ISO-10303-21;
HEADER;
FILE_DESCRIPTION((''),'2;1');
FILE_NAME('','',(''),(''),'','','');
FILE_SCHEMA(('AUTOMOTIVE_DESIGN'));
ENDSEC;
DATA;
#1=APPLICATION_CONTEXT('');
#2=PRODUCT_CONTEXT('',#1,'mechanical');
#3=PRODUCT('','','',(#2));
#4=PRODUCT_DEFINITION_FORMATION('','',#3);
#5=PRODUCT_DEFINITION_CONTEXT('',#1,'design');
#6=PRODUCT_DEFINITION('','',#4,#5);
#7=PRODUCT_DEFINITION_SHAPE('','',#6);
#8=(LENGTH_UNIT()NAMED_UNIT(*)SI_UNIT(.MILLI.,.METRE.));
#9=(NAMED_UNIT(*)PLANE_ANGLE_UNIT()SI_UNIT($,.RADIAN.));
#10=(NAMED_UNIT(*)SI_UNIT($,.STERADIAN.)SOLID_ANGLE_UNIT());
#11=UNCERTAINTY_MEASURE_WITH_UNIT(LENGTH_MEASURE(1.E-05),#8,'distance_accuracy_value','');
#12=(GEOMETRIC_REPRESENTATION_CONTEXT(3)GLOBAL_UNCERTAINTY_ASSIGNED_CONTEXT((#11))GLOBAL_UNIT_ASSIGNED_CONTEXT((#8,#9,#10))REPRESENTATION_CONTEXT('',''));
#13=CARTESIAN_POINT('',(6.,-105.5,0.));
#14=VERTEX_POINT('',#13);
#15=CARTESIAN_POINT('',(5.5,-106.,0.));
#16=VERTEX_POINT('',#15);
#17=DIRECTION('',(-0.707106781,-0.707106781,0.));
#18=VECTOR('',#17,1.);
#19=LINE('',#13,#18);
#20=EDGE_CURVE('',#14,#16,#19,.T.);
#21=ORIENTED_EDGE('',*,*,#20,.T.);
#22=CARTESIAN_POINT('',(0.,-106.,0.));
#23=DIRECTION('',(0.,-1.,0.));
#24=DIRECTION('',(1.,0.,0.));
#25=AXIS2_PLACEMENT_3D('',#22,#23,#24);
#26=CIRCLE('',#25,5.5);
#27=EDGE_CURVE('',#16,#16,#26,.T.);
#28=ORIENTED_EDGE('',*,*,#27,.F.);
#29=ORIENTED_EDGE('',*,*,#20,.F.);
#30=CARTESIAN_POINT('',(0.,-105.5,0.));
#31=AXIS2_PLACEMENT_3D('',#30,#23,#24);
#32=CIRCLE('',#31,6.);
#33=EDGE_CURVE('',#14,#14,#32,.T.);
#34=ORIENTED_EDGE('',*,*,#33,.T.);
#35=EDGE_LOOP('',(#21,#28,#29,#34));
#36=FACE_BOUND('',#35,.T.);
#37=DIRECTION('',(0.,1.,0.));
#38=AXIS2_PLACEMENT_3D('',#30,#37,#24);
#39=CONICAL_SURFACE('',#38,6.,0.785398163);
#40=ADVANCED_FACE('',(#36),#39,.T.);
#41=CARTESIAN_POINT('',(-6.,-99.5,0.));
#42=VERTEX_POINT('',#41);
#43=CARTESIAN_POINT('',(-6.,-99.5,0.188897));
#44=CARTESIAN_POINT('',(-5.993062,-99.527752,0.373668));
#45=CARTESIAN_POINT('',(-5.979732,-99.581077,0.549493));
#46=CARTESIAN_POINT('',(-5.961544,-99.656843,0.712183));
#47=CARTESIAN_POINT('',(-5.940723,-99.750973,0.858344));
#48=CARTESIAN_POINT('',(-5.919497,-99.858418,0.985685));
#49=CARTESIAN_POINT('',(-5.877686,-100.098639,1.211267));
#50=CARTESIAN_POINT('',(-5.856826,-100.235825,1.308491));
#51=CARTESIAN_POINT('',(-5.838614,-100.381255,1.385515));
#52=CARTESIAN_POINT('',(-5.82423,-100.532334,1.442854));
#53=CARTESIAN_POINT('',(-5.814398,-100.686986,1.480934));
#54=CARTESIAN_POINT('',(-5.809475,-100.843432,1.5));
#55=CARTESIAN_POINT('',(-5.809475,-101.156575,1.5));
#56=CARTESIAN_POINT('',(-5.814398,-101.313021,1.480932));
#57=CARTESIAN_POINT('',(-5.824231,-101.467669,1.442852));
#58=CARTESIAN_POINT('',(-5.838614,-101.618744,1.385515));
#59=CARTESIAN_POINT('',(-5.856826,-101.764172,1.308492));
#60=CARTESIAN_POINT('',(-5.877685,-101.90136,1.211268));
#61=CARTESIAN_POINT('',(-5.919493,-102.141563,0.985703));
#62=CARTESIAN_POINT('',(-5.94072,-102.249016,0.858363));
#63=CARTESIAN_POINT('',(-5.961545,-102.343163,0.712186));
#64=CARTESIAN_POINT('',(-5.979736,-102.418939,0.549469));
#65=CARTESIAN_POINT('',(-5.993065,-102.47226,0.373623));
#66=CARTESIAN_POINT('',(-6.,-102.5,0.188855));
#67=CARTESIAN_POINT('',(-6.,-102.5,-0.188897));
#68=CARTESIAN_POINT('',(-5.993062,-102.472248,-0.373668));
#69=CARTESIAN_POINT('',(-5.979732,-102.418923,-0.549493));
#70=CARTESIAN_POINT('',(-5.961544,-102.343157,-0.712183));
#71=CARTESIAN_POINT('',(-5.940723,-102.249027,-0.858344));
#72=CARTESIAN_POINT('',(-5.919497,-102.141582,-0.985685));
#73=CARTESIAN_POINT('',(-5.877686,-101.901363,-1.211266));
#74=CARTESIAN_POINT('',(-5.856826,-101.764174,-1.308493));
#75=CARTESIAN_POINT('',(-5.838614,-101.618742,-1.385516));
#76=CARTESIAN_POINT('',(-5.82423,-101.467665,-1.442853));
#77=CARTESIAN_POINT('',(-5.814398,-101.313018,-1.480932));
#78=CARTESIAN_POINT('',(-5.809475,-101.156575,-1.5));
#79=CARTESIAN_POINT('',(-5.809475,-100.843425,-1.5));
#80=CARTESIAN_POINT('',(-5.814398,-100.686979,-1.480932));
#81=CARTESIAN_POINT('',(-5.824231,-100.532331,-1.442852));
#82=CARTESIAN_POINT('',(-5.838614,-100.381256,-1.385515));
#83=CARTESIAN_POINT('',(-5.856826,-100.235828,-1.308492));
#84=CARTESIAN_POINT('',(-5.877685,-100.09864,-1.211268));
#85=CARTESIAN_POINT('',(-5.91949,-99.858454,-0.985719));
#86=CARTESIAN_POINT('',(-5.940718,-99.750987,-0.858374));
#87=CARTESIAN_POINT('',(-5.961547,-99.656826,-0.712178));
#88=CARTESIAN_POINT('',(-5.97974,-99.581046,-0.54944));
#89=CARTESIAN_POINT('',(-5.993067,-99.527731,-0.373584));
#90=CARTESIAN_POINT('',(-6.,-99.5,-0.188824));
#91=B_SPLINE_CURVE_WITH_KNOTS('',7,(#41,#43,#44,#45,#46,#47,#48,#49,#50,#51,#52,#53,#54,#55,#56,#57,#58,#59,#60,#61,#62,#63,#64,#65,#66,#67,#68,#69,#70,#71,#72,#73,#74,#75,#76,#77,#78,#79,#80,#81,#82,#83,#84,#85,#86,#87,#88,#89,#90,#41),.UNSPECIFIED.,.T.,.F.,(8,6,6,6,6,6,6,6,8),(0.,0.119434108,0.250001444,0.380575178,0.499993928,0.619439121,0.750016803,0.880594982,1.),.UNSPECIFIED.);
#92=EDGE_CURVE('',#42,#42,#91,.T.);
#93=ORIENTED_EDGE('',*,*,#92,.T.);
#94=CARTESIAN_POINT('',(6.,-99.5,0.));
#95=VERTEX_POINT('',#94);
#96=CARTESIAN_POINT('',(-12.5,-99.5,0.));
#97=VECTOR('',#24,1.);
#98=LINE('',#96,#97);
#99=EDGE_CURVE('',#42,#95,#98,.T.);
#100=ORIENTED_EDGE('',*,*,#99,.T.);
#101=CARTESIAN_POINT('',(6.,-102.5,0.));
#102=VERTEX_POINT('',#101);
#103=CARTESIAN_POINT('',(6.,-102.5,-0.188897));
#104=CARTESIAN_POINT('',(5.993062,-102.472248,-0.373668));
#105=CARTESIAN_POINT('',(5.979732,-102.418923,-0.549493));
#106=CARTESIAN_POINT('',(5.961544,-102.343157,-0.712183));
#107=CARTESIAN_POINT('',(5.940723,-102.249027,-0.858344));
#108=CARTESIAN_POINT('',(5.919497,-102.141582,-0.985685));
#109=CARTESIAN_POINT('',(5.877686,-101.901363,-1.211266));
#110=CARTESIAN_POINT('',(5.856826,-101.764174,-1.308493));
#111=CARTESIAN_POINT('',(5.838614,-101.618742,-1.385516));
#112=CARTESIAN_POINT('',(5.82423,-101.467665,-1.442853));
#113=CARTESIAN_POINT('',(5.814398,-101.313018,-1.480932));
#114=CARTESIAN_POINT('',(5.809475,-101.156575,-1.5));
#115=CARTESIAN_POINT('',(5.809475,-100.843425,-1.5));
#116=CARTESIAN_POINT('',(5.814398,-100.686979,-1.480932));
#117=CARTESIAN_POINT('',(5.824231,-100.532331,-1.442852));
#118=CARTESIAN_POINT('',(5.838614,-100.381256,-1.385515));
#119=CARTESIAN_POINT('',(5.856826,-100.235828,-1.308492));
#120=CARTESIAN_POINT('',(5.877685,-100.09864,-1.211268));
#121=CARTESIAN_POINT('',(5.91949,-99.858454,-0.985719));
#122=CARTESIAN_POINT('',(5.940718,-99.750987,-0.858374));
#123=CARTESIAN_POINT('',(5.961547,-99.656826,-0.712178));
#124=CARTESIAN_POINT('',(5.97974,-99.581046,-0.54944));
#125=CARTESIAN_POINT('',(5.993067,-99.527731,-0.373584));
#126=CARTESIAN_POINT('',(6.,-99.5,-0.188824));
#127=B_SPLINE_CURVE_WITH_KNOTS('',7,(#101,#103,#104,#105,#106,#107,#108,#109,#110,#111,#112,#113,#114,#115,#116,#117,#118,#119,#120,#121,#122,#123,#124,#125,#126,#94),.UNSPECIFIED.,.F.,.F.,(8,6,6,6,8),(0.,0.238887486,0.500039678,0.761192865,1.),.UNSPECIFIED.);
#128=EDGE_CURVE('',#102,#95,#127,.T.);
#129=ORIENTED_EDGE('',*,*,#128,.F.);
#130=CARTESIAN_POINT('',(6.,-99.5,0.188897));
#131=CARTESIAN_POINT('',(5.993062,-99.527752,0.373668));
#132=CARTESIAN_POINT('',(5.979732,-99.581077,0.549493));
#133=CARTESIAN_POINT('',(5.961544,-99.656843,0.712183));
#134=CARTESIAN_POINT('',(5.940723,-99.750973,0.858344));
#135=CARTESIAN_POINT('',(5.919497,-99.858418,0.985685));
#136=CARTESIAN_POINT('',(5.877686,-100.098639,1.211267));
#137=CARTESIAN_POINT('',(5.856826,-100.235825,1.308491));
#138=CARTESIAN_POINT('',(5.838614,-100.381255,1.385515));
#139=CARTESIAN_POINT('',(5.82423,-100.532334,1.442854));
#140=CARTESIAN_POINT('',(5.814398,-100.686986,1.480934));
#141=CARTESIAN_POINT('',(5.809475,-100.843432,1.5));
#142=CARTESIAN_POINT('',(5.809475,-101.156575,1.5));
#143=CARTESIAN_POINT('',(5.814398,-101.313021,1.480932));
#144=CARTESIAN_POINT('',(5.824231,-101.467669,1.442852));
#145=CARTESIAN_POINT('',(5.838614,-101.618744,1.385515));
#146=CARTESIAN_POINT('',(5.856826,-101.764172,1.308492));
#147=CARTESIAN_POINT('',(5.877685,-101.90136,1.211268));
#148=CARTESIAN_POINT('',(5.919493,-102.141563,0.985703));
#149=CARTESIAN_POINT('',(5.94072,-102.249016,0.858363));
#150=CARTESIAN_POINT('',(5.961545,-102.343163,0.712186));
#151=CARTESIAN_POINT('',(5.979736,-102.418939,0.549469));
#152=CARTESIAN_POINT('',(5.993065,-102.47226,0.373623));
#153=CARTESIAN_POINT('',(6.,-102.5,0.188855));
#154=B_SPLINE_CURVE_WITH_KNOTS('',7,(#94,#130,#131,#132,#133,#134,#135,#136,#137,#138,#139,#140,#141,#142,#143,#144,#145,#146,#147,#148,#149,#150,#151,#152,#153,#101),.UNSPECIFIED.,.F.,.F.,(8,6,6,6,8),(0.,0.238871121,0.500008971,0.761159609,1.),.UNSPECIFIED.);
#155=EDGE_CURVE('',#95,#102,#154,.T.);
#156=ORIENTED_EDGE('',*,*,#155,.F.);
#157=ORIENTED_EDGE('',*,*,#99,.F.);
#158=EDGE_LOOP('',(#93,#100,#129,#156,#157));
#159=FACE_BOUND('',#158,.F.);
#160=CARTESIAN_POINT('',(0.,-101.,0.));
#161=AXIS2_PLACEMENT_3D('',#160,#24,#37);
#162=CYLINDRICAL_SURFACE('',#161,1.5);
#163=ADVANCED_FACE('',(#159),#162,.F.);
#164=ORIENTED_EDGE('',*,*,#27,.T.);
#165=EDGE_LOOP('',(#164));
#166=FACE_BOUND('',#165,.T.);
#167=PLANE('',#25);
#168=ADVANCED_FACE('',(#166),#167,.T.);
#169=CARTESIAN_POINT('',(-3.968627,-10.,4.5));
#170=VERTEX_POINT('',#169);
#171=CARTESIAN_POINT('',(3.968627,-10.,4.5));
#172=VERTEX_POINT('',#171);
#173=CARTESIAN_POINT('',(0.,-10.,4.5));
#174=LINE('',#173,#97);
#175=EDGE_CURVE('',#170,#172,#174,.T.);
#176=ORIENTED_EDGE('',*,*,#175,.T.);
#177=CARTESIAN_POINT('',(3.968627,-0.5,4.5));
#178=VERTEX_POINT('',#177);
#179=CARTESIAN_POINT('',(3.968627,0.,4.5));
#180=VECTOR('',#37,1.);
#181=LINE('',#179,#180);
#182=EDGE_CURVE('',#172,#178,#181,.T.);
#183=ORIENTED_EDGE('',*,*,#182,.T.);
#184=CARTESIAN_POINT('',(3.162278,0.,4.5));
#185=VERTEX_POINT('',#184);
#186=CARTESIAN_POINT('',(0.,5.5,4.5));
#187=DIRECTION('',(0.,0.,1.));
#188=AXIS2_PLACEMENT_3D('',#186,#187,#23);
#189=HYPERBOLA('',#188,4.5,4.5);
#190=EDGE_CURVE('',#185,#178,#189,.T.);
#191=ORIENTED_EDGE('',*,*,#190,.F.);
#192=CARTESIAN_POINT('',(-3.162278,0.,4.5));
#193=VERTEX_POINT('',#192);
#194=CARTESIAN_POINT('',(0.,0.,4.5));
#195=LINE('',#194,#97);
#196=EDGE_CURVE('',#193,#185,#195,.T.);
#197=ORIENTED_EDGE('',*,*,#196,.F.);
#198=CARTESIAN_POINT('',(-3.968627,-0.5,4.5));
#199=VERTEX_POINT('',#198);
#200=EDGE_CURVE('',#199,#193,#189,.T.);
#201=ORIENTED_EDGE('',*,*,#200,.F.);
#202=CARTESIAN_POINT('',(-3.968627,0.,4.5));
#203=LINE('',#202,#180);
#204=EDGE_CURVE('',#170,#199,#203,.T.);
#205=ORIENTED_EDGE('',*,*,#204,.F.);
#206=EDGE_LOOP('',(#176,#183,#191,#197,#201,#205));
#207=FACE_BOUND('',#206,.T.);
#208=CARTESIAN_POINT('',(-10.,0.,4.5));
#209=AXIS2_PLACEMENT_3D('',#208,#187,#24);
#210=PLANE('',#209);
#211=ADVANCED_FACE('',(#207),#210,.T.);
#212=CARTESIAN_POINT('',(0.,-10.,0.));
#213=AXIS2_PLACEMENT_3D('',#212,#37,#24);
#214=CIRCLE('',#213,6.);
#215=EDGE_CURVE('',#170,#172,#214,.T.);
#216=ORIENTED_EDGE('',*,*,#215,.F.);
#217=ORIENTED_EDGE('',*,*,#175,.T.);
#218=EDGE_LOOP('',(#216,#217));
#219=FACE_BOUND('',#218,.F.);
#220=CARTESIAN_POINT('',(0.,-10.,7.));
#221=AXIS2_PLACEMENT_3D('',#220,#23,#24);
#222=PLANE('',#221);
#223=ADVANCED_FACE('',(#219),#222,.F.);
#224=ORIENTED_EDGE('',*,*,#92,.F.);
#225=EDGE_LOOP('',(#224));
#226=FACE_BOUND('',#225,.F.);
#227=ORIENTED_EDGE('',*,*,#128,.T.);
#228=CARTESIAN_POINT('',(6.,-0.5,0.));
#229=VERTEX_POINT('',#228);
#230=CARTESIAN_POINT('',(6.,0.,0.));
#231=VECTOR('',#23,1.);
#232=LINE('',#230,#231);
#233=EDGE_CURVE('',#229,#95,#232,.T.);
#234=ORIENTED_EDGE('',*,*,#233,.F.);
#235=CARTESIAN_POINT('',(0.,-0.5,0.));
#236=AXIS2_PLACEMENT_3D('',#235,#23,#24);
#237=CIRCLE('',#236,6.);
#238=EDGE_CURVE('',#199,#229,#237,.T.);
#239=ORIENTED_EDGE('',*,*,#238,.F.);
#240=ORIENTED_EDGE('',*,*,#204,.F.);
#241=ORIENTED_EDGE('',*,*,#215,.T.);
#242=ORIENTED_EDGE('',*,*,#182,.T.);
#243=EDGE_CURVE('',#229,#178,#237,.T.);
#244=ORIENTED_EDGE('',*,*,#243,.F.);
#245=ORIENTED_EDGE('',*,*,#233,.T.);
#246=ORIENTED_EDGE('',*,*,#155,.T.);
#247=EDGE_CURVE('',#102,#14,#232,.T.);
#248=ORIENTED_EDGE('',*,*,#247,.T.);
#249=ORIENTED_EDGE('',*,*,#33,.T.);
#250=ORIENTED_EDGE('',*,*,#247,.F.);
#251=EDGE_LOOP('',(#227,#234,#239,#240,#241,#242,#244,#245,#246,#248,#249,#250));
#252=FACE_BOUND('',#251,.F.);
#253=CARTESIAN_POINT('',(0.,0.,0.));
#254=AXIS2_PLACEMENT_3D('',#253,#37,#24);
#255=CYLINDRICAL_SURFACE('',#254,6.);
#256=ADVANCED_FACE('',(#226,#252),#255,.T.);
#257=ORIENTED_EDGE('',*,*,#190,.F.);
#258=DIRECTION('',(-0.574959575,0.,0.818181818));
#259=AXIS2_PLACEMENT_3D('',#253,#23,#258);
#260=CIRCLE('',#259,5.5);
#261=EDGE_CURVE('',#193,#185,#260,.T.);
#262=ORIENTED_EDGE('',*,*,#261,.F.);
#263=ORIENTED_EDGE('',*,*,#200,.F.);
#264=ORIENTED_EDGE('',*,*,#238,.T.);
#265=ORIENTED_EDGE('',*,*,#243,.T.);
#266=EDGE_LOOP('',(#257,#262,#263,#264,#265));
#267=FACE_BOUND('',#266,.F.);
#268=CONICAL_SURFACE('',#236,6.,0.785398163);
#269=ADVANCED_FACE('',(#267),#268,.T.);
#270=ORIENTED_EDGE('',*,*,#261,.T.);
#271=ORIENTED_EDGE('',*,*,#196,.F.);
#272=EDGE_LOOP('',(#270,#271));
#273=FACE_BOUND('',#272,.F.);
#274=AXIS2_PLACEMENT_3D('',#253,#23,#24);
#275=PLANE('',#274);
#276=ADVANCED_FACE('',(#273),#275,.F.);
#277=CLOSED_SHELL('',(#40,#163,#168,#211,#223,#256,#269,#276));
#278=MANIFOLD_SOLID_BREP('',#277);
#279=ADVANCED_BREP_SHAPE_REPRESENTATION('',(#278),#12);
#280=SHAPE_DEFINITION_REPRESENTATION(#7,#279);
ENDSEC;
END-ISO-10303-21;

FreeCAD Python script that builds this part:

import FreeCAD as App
import Part
import Sketcher
from FreeCAD import Vector
Q = App.Units.Quantity


def edges_at(feature, points):
    """Names of the edges that pass closest to the given points."""
    edges = feature.Shape.Edges
    near = lambda p: min(range(len(edges)), key=lambda i: edges[i].distToShape(Part.Vertex(*p))[0])
    return sorted({f"Edge{near(p) + 1}" for p in points})

doc = App.newDocument("Part")
body = doc.addObject("PartDesign::Body", "Body")

# Sketch on XZ plane
sketch1 = body.newObject("Sketcher::SketchObject", "Sketch")
sketch1.AttachmentSupport = (doc.getObject("XZ_Plane"), [""])
sketch1.MapMode = "FlatFace"
sketch1.addGeometry(Part.Circle(Vector(0, 0, 0), Vector(0, 0, 1), 6), False)
sketch1.addConstraint(Sketcher.Constraint("Coincident", 0, 3, -1, 1))
sketch1.addConstraint(Sketcher.Constraint("Diameter", 0, Q("12 mm")))
pad1 = body.newObject("PartDesign::Pad", "Pad")
pad1.Profile = sketch1
pad1.Length = 106
doc.recompute()

chamfer = body.newObject("PartDesign::Chamfer", "Chamfer")
chamfer.Base = (pad1, edges_at(pad1, [(-6, -106, 0), (-6, 0, 0)]))
chamfer.Size = 0.5

# Sketch on XZ plane
sketch2 = body.newObject("Sketcher::SketchObject", "Sketch001")
sketch2.AttachmentSupport = (doc.getObject("XZ_Plane"), [""])
sketch2.MapMode = "FlatFace"
sketch2.addGeometry(Part.LineSegment(Vector(-10, 10, 0), Vector(-10, 4, 0)), False)
sketch2.addGeometry(Part.LineSegment(Vector(-10, 4, 0), Vector(10, 4, 0)), False)
sketch2.addGeometry(Part.LineSegment(Vector(10, 4, 0), Vector(10, 10, 0)), False)
sketch2.addGeometry(Part.LineSegment(Vector(10, 10, 0), Vector(-10, 10, 0)), False)
sketch2.addConstraint(Sketcher.Constraint("Coincident", 0, 2, 1, 1))
sketch2.addConstraint(Sketcher.Constraint("Coincident", 1, 2, 2, 1))
sketch2.addConstraint(Sketcher.Constraint("Coincident", 2, 2, 3, 1))
sketch2.addConstraint(Sketcher.Constraint("Coincident", 3, 2, 0, 1))
sketch2.addConstraint(Sketcher.Constraint("Vertical", 0))
sketch2.addConstraint(Sketcher.Constraint("Horizontal", 1))
sketch2.addConstraint(Sketcher.Constraint("Vertical", 2))
sketch2.addConstraint(Sketcher.Constraint("Horizontal", 3))
sketch2.addConstraint(Sketcher.Constraint("DistanceX", 1, 1, 1, 2, Q("20 mm")))
sketch2.addConstraint(Sketcher.Constraint("DistanceY", 0, 2, 0, 1, Q("5 mm")))
sketch2.addConstraint(Sketcher.Constraint("DistanceX", 0, 2, -1, 1, Q("10 mm")))
sketch2.addConstraint(Sketcher.Constraint("DistanceY", -1, 1, 0, 2, Q("4.5 mm")))
pocket1 = body.newObject("PartDesign::Pocket", "Pocket")
pocket1.Profile = sketch2
pocket1.Length = 10
pocket1.Reversed = True

# Sketch on YZ plane
sketch3 = body.newObject("Sketcher::SketchObject", "Sketch002")
sketch3.AttachmentSupport = (doc.getObject("YZ_Plane"), [""])
sketch3.MapMode = "FlatFace"
sketch3.addGeometry(Part.Circle(Vector(-101, 0, 0), Vector(0, 0, 1), 1.5), False)
sketch3.addConstraint(Sketcher.Constraint("PointOnObject", 0, 3, -1))
sketch3.addConstraint(Sketcher.Constraint("Diameter", 0, Q("3 mm")))
sketch3.addConstraint(Sketcher.Constraint("DistanceX", 0, 3, -1, 1, Q("101 mm")))
pocket2 = body.newObject("PartDesign::Pocket", "Pocket001")
pocket2.Profile = sketch3
pocket2.Length = 25
pocket2.Midplane = True

doc.recompute()
